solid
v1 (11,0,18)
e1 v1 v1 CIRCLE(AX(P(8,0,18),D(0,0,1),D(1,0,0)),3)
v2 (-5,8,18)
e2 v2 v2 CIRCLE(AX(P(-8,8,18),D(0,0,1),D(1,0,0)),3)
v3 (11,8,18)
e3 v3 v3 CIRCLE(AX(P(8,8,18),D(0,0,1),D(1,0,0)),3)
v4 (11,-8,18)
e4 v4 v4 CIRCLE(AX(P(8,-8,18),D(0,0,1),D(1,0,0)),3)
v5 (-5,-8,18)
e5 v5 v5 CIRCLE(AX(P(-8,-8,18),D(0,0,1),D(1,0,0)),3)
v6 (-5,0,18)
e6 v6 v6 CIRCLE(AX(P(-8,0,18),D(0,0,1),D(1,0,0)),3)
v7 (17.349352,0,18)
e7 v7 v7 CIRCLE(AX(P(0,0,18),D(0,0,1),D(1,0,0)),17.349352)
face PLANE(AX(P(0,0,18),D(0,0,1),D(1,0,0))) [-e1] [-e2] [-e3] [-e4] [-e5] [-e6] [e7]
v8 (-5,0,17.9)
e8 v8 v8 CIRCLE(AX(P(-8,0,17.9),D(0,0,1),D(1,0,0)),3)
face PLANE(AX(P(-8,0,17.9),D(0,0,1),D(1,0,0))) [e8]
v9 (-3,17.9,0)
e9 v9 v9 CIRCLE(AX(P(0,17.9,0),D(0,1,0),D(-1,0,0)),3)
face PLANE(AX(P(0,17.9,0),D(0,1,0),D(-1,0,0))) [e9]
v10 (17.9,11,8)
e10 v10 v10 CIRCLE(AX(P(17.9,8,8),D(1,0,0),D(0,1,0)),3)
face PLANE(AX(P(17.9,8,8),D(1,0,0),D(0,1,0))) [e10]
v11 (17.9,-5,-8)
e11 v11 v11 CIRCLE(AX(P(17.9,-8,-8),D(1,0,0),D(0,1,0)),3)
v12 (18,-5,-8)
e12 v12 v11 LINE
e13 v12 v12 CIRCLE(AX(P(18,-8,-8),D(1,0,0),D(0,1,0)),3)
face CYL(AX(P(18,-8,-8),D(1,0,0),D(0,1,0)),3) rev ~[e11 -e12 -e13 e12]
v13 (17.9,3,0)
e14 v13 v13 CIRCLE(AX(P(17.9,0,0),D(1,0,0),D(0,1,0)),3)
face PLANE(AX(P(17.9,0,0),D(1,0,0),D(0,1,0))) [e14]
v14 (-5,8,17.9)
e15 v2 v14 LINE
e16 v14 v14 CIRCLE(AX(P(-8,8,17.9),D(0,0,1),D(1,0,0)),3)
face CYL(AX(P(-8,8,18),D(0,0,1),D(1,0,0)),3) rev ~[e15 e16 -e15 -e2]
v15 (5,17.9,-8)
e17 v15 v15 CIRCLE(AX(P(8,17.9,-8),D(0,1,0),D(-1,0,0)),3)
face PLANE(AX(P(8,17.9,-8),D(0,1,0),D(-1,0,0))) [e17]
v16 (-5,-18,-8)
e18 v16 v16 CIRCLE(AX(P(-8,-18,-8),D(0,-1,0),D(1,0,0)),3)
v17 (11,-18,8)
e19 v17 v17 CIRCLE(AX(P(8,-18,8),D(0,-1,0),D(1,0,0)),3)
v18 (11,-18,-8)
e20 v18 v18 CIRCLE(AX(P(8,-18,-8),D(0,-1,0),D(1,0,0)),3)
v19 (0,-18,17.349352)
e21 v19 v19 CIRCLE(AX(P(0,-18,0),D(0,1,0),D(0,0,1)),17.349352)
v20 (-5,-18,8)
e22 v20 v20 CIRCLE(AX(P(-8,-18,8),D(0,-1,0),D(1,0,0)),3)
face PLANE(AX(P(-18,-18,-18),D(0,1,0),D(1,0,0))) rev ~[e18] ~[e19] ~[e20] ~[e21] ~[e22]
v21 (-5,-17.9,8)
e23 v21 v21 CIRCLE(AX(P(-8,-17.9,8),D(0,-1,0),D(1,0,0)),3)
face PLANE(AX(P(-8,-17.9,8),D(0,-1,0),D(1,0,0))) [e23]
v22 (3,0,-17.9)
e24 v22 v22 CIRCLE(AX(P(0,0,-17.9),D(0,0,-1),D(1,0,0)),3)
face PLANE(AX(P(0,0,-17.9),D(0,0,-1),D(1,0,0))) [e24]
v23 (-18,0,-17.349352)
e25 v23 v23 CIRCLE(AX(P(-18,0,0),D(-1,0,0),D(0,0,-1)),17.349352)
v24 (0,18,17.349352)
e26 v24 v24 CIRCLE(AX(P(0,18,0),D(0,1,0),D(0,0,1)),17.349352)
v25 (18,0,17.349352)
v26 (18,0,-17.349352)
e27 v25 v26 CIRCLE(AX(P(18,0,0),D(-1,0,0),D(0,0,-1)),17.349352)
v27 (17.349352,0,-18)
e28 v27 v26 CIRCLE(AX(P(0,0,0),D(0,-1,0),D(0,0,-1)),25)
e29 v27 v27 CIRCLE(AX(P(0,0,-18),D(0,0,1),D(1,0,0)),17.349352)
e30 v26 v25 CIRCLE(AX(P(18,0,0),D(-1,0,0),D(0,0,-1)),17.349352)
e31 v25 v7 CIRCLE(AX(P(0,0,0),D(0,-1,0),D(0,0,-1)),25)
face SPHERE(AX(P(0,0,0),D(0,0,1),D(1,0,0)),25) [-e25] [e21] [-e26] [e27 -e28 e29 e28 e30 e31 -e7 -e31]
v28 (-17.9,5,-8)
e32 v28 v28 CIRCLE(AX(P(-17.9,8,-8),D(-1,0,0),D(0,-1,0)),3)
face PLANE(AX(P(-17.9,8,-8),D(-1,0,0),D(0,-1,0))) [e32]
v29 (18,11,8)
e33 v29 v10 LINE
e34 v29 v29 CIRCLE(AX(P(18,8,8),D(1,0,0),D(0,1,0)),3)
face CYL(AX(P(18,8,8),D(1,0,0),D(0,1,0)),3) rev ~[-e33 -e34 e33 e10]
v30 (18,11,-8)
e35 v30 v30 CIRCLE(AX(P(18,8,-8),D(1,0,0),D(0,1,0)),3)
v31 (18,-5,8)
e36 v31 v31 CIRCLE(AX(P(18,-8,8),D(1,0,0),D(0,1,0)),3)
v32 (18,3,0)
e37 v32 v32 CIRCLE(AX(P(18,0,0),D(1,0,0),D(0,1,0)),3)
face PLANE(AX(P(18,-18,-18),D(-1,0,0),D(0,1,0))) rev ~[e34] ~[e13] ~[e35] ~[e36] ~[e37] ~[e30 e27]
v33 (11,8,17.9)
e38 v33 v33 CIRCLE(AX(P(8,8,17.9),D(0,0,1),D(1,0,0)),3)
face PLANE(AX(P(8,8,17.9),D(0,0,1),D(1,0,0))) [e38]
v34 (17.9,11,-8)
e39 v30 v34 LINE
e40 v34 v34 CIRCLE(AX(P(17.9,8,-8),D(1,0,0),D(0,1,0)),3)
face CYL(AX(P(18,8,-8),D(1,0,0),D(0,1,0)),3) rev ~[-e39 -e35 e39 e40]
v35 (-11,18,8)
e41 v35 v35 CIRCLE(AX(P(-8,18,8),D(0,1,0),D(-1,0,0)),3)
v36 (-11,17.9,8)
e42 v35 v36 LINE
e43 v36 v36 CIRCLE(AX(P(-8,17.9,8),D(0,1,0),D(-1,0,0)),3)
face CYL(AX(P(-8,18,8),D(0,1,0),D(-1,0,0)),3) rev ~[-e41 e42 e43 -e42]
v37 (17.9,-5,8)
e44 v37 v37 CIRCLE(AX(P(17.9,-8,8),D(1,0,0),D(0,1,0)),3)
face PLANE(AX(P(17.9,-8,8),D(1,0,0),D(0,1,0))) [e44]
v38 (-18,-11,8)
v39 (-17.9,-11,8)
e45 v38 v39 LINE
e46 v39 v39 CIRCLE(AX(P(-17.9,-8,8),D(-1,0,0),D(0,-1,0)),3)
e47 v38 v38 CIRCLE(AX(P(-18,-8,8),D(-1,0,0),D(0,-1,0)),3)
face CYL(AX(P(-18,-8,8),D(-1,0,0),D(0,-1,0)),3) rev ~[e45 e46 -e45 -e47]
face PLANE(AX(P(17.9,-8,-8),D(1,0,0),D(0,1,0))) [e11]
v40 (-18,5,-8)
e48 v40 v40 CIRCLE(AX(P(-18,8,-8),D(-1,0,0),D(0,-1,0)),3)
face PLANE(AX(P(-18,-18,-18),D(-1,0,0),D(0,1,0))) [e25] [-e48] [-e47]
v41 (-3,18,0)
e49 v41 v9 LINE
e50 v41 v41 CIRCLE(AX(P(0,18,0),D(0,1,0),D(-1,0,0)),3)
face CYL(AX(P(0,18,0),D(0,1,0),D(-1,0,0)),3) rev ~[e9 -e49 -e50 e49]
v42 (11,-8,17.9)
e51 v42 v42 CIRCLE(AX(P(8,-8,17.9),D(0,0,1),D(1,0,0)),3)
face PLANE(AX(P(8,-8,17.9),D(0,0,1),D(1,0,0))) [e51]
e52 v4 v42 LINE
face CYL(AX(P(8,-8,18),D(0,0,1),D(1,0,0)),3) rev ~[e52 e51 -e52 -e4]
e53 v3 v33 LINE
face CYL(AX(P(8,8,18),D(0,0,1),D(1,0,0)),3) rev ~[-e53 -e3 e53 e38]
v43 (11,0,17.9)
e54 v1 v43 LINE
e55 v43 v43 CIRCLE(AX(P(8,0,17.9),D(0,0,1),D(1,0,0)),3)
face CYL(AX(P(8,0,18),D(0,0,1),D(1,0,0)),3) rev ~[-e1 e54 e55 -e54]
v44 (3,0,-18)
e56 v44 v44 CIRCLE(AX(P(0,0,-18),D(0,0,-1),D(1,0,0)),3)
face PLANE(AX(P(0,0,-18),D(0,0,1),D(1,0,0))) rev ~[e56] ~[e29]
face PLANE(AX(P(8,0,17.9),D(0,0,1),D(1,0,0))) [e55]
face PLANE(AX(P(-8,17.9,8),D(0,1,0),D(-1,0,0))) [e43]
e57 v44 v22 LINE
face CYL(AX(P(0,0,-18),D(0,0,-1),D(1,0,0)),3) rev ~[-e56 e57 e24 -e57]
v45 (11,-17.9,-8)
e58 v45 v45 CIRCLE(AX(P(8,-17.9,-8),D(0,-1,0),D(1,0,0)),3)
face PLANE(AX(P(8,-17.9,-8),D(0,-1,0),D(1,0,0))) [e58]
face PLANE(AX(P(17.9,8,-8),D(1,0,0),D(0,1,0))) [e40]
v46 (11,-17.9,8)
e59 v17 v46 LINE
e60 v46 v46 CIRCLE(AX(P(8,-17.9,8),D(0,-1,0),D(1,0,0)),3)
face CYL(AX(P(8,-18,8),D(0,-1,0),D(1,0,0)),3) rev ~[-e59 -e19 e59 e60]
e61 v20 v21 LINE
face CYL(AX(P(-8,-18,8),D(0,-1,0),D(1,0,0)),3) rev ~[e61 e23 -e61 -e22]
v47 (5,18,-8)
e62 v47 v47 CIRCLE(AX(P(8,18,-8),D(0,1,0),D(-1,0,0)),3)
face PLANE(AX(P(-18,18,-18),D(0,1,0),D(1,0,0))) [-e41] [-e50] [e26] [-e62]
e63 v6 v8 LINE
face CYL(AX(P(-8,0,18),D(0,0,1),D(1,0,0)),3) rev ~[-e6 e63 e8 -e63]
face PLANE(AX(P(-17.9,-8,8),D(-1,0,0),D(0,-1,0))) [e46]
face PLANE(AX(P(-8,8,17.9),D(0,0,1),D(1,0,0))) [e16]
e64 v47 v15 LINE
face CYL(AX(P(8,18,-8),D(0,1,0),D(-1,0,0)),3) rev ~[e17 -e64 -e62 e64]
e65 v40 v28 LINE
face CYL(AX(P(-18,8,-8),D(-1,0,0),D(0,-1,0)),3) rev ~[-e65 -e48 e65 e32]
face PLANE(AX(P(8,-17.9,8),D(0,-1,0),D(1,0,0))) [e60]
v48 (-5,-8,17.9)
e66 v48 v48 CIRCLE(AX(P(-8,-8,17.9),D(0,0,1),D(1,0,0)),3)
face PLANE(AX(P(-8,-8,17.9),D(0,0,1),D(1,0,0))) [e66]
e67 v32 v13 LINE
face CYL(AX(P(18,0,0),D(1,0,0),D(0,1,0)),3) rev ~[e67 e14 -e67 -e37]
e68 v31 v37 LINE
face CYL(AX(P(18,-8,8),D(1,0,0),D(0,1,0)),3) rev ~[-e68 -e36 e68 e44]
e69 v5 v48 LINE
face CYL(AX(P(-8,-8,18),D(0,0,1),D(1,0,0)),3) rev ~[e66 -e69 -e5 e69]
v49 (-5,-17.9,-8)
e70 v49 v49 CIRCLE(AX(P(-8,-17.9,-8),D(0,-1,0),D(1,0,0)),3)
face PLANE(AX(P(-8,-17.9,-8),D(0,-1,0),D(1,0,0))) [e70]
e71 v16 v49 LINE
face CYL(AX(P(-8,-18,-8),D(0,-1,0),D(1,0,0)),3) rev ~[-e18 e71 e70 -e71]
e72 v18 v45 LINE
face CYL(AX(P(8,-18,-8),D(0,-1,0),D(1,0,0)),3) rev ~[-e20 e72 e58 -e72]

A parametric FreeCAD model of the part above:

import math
import FreeCAD as App
import Part
import Sketcher


def add_polygon(sketch, points):
    """Adds a closed chain of lines whose ends are joined by coincident constraints."""
    first, n = sketch.GeometryCount, len(points)
    for a, b in zip(points, points[1:] + points[:1]):
        sketch.addGeometry(Part.LineSegment(App.Vector(*a, 0), App.Vector(*b, 0)), False)
    for i in range(n):
        sketch.addConstraint(Sketcher.Constraint("Coincident", first + i, 2, first + (i + 1) % n, 1))

doc = App.newDocument("Part")
body = doc.addObject("PartDesign::Body", "Body")

sketch1 = body.newObject("Sketcher::SketchObject", "Sketch")
sketch1.AttachmentSupport = (doc.getObject("XZ_Plane"), [""])
sketch1.MapMode = "FlatFace"
sketch1.addGeometry(Part.ArcOfCircle(Part.Circle(App.Vector(0, 0, 0), App.Vector(0, 0, 1), 25), math.radians(-90), math.radians(90)), False)
sketch1.addGeometry(Part.LineSegment(App.Vector(0, 25, 0), App.Vector(0, -25, 0)), False)
sketch1.addConstraint(Sketcher.Constraint("Coincident", 0, 1, 1, 2))
sketch1.addConstraint(Sketcher.Constraint("Coincident", 1, 1, 0, 2))
sketch1.addConstraint(Sketcher.Constraint("Vertical", 1))
sketch1.addConstraint(Sketcher.Constraint("Coincident", 0, 3, -1, 1))
sketch1.addConstraint(Sketcher.Constraint("PointOnObject", 0, 1, -2))
sketch1.addConstraint(Sketcher.Constraint("Radius", 0, 25.0))
revolution = body.newObject("PartDesign::Revolution", "Revolution")
revolution.Profile = sketch1
revolution.ReferenceAxis = (sketch1, ["V_Axis"])
revolution.Angle = 360
body2 = doc.addObject("PartDesign::Body", "Body001")

sketch2 = body2.newObject("Sketcher::SketchObject", "Sketch001")
sketch2.AttachmentSupport = (doc.getObject("XY_Plane001"), [""])
sketch2.MapMode = "FlatFace"
sketch2.AttachmentOffset = App.Placement(App.Vector(0, 0, -18), App.Rotation())
add_polygon(sketch2, [(-18, 18), (-18, -18), (18, -18), (18, 18)])
sketch2.addConstraint(Sketcher.Constraint("Vertical", 0))
sketch2.addConstraint(Sketcher.Constraint("Horizontal", 1))
sketch2.addConstraint(Sketcher.Constraint("Vertical", 2))
sketch2.addConstraint(Sketcher.Constraint("Horizontal", 3))
sketch2.addConstraint(Sketcher.Constraint("Symmetric", 0, 2, 2, 2, -1, 1))
sketch2.addConstraint(Sketcher.Constraint("Equal", 3, 0))
sketch2.addConstraint(Sketcher.Constraint("DistanceX", 1, 1, 1, 2, 36.0))
pad1 = body2.newObject("PartDesign::Pad", "Pad")
pad1.Profile = sketch2
pad1.Length = 36
doc.recompute()

boolean = body2.newObject("PartDesign::Boolean", "Boolean")
boolean.Type = "Common"
boolean.addObjects([body])

sketch3 = body2.newObject("Sketcher::SketchObject", "Sketch002")
sketch3.AttachmentSupport = (doc.getObject("XY_Plane001"), [""])
sketch3.MapMode = "FlatFace"
sketch3.AttachmentOffset = App.Placement(App.Vector(0, 0, 18), App.Rotation())
sketch3.addGeometry(Part.Circle(App.Vector(-8, 8, 0), App.Vector(0, 0, 1), 3), False)
sketch3.addGeometry(Part.Circle(App.Vector(8, 8, 0), App.Vector(0, 0, 1), 3), False)
sketch3.addGeometry(Part.Circle(App.Vector(8, -8, 0), App.Vector(0, 0, 1), 3), False)
sketch3.addGeometry(Part.Circle(App.Vector(-8, -8, 0), App.Vector(0, 0, 1), 3), False)
sketch3.addGeometry(Part.Circle(App.Vector(-8, 0, 0), App.Vector(0, 0, 1), 3), False)
sketch3.addGeometry(Part.Circle(App.Vector(8, 0, 0), App.Vector(0, 0, 1), 3), False)
sketch3.addConstraint(Sketcher.Constraint("Equal", 0, 1))
sketch3.addConstraint(Sketcher.Constraint("Equal", 1, 2))
sketch3.addConstraint(Sketcher.Constraint("Equal", 2, 3))
sketch3.addConstraint(Sketcher.Constraint("Equal", 3, 4))
sketch3.addConstraint(Sketcher.Constraint("Equal", 4, 5))
sketch3.addConstraint(Sketcher.Constraint("Symmetric", 0, 3, 2, 3, -1, 1))
sketch3.addConstraint(Sketcher.Constraint("Symmetric", 1, 3, 3, 3, -1, 1))
sketch3.addConstraint(Sketcher.Constraint("Symmetric", 4, 3, 5, 3, -1, 1))
sketch3.addConstraint(Sketcher.Constraint("Symmetric", 0, 3, 1, 3, -2))
sketch3.addConstraint(Sketcher.Constraint("PointOnObject", 4, 3, -1))
sketch3.addConstraint(Sketcher.Constraint("Vertical", 3, 3, 4, 3))
sketch3.addConstraint(Sketcher.Constraint("Diameter", 0, 6.0))
sketch3.addConstraint(Sketcher.Constraint("DistanceX", 0, 3, -1, 1, 8.0))
sketch3.addConstraint(Sketcher.Constraint("DistanceY", -1, 1, 0, 3, 8.0))
pocket1 = body2.newObject("PartDesign::Pocket", "Pocket")
pocket1.Profile = sketch3
pocket1.Length = 0.1

sketch4 = body2.newObject("Sketcher::SketchObject", "Sketch003")
sketch4.AttachmentSupport = (doc.getObject("YZ_Plane001"), [""])
sketch4.MapMode = "FlatFace"
sketch4.AttachmentOffset = App.Placement(App.Vector(0, 0, 18), App.Rotation())
sketch4.addGeometry(Part.Circle(App.Vector(-8, 8, 0), App.Vector(0, 0, 1), 3), False)
sketch4.addGeometry(Part.Circle(App.Vector(8, 8, 0), App.Vector(0, 0, 1), 3), False)
sketch4.addGeometry(Part.Circle(App.Vector(0, 0, 0), App.Vector(0, 0, 1), 3), False)
sketch4.addGeometry(Part.Circle(App.Vector(-8, -8, 0), App.Vector(0, 0, 1), 3), False)
sketch4.addGeometry(Part.Circle(App.Vector(8, -8, 0), App.Vector(0, 0, 1), 3), False)
sketch4.addConstraint(Sketcher.Constraint("Coincident", 2, 3, -1, 1))
sketch4.addConstraint(Sketcher.Constraint("Equal", 0, 1))
sketch4.addConstraint(Sketcher.Constraint("Equal", 1, 2))
sketch4.addConstraint(Sketcher.Constraint("Equal", 2, 3))
sketch4.addConstraint(Sketcher.Constraint("Equal", 3, 4))
sketch4.addConstraint(Sketcher.Constraint("Symmetric", 1, 3, 3, 3, -1, 1))
sketch4.addConstraint(Sketcher.Constraint("Symmetric", 0, 3, 4, 3, -1, 1))
sketch4.addConstraint(Sketcher.Constraint("Symmetric", 0, 3, 1, 3, -2))
sketch4.addConstraint(Sketcher.Constraint("Diameter", 0, 6.0))
sketch4.addConstraint(Sketcher.Constraint("DistanceX", 0, 3, -1, 1, 8.0))
sketch4.addConstraint(Sketcher.Constraint("DistanceY", -1, 1, 0, 3, 8.0))
pocket2 = body2.newObject("PartDesign::Pocket", "Pocket001")
pocket2.Profile = sketch4
pocket2.Length = 0.1

sketch5 = body2.newObject("Sketcher::SketchObject", "Sketch004")
sketch5.AttachmentSupport = (doc.getObject("XZ_Plane001"), [""])
sketch5.MapMode = "FlatFace"
sketch5.AttachmentOffset = App.Placement(App.Vector(0, 0, 18), App.Rotation())
sketch5.addGeometry(Part.Circle(App.Vector(-8, 8, 0), App.Vector(0, 0, 1), 3), False)
sketch5.addGeometry(Part.Circle(App.Vector(8, 8, 0), App.Vector(0, 0, 1), 3), False)
sketch5.addGeometry(Part.Circle(App.Vector(-8, -8, 0), App.Vector(0, 0, 1), 3), False)
sketch5.addGeometry(Part.Circle(App.Vector(8, -8, 0), App.Vector(0, 0, 1), 3), False)
sketch5.addConstraint(Sketcher.Constraint("Equal", 0, 1))
sketch5.addConstraint(Sketcher.Constraint("Equal", 1, 2))
sketch5.addConstraint(Sketcher.Constraint("Equal", 2, 3))
sketch5.addConstraint(Sketcher.Constraint("Symmetric", 1, 3, 2, 3, -1, 1))
sketch5.addConstraint(Sketcher.Constraint("Symmetric", 0, 3, 3, 3, -1, 1))
sketch5.addConstraint(Sketcher.Constraint("Symmetric", 0, 3, 1, 3, -2))
sketch5.addConstraint(Sketcher.Constraint("Diameter", 0, 6.0))
sketch5.addConstraint(Sketcher.Constraint("DistanceX", 0, 3, -1, 1, 8.0))
sketch5.addConstraint(Sketcher.Constraint("DistanceY", -1, 1, 0, 3, 8.0))
pocket3 = body2.newObject("PartDesign::Pocket", "Pocket002")
pocket3.Profile = sketch5
pocket3.Length = 0.1

sketch6 = body2.newObject("Sketcher::SketchObject", "Sketch005")
sketch6.AttachmentSupport = (doc.getObject("XZ_Plane001"), [""])
sketch6.MapMode = "FlatFace"
sketch6.AttachmentOffset = App.Placement(App.Vector(0, 0, -18), App.Rotation())
sketch6.addGeometry(Part.Circle(App.Vector(-8, 8, 0), App.Vector(0, 0, 1), 3), False)
sketch6.addGeometry(Part.Circle(App.Vector(0, 0, 0), App.Vector(0, 0, 1), 3), False)
sketch6.addGeometry(Part.Circle(App.Vector(8, -8, 0), App.Vector(0, 0, 1), 3), False)
sketch6.addConstraint(Sketcher.Constraint("Coincident", 1, 3, -1, 1))
sketch6.addConstraint(Sketcher.Constraint("Equal", 0, 1))
sketch6.addConstraint(Sketcher.Constraint("Equal", 1, 2))
sketch6.addConstraint(Sketcher.Constraint("Symmetric", 0, 3, 2, 3, -1, 1))
sketch6.addConstraint(Sketcher.Constraint("Diameter", 0, 6.0))
sketch6.addConstraint(Sketcher.Constraint("DistanceX", 0, 3, -1, 1, 8.0))
sketch6.addConstraint(Sketcher.Constraint("DistanceY", -1, 1, 0, 3, 8.0))
pocket4 = body2.newObject("PartDesign::Pocket", "Pocket003")
pocket4.Profile = sketch6
pocket4.Length = 0.1
pocket4.Reversed = True

sketch7 = body2.newObject("Sketcher::SketchObject", "Sketch006")
sketch7.AttachmentSupport = (doc.getObject("YZ_Plane001"), [""])
sketch7.MapMode = "FlatFace"
sketch7.AttachmentOffset = App.Placement(App.Vector(0, 0, -18), App.Rotation())
sketch7.addGeometry(Part.Circle(App.Vector(-8, 8, 0), App.Vector(0, 0, 1), 3), False)
sketch7.addGeometry(Part.Circle(App.Vector(8, -8, 0), App.Vector(0, 0, 1), 3), False)
sketch7.addConstraint(Sketcher.Constraint("Equal", 0, 1))
sketch7.addConstraint(Sketcher.Constraint("Symmetric", 0, 3, 1, 3, -1, 1))
sketch7.addConstraint(Sketcher.Constraint("Diameter", 0, 6.0))
sketch7.addConstraint(Sketcher.Constraint("DistanceX", 0, 3, -1, 1, 8.0))
sketch7.addConstraint(Sketcher.Constraint("DistanceY", -1, 1, 0, 3, 8.0))
pocket5 = body2.newObject("PartDesign::Pocket", "Pocket004")
pocket5.Profile = sketch7
pocket5.Length = 0.1
pocket5.Reversed = True

sketch8 = body2.newObject("Sketcher::SketchObject", "Sketch007")
sketch8.AttachmentSupport = (doc.getObject("XY_Plane001"), [""])
sketch8.MapMode = "FlatFace"
sketch8.AttachmentOffset = App.Placement(App.Vector(0, 0, -18), App.Rotation())
sketch8.addGeometry(Part.Circle(App.Vector(0, 0, 0), App.Vector(0, 0, 1), 3), False)
sketch8.addConstraint(Sketcher.Constraint("Coincident", 0, 3, -1, 1))
sketch8.addConstraint(Sketcher.Constraint("Diameter", 0, 6.0))
pocket6 = body2.newObject("PartDesign::Pocket", "Pocket005")
pocket6.Profile = sketch8
pocket6.Length = 0.1
pocket6.Reversed = True

doc.recompute()
